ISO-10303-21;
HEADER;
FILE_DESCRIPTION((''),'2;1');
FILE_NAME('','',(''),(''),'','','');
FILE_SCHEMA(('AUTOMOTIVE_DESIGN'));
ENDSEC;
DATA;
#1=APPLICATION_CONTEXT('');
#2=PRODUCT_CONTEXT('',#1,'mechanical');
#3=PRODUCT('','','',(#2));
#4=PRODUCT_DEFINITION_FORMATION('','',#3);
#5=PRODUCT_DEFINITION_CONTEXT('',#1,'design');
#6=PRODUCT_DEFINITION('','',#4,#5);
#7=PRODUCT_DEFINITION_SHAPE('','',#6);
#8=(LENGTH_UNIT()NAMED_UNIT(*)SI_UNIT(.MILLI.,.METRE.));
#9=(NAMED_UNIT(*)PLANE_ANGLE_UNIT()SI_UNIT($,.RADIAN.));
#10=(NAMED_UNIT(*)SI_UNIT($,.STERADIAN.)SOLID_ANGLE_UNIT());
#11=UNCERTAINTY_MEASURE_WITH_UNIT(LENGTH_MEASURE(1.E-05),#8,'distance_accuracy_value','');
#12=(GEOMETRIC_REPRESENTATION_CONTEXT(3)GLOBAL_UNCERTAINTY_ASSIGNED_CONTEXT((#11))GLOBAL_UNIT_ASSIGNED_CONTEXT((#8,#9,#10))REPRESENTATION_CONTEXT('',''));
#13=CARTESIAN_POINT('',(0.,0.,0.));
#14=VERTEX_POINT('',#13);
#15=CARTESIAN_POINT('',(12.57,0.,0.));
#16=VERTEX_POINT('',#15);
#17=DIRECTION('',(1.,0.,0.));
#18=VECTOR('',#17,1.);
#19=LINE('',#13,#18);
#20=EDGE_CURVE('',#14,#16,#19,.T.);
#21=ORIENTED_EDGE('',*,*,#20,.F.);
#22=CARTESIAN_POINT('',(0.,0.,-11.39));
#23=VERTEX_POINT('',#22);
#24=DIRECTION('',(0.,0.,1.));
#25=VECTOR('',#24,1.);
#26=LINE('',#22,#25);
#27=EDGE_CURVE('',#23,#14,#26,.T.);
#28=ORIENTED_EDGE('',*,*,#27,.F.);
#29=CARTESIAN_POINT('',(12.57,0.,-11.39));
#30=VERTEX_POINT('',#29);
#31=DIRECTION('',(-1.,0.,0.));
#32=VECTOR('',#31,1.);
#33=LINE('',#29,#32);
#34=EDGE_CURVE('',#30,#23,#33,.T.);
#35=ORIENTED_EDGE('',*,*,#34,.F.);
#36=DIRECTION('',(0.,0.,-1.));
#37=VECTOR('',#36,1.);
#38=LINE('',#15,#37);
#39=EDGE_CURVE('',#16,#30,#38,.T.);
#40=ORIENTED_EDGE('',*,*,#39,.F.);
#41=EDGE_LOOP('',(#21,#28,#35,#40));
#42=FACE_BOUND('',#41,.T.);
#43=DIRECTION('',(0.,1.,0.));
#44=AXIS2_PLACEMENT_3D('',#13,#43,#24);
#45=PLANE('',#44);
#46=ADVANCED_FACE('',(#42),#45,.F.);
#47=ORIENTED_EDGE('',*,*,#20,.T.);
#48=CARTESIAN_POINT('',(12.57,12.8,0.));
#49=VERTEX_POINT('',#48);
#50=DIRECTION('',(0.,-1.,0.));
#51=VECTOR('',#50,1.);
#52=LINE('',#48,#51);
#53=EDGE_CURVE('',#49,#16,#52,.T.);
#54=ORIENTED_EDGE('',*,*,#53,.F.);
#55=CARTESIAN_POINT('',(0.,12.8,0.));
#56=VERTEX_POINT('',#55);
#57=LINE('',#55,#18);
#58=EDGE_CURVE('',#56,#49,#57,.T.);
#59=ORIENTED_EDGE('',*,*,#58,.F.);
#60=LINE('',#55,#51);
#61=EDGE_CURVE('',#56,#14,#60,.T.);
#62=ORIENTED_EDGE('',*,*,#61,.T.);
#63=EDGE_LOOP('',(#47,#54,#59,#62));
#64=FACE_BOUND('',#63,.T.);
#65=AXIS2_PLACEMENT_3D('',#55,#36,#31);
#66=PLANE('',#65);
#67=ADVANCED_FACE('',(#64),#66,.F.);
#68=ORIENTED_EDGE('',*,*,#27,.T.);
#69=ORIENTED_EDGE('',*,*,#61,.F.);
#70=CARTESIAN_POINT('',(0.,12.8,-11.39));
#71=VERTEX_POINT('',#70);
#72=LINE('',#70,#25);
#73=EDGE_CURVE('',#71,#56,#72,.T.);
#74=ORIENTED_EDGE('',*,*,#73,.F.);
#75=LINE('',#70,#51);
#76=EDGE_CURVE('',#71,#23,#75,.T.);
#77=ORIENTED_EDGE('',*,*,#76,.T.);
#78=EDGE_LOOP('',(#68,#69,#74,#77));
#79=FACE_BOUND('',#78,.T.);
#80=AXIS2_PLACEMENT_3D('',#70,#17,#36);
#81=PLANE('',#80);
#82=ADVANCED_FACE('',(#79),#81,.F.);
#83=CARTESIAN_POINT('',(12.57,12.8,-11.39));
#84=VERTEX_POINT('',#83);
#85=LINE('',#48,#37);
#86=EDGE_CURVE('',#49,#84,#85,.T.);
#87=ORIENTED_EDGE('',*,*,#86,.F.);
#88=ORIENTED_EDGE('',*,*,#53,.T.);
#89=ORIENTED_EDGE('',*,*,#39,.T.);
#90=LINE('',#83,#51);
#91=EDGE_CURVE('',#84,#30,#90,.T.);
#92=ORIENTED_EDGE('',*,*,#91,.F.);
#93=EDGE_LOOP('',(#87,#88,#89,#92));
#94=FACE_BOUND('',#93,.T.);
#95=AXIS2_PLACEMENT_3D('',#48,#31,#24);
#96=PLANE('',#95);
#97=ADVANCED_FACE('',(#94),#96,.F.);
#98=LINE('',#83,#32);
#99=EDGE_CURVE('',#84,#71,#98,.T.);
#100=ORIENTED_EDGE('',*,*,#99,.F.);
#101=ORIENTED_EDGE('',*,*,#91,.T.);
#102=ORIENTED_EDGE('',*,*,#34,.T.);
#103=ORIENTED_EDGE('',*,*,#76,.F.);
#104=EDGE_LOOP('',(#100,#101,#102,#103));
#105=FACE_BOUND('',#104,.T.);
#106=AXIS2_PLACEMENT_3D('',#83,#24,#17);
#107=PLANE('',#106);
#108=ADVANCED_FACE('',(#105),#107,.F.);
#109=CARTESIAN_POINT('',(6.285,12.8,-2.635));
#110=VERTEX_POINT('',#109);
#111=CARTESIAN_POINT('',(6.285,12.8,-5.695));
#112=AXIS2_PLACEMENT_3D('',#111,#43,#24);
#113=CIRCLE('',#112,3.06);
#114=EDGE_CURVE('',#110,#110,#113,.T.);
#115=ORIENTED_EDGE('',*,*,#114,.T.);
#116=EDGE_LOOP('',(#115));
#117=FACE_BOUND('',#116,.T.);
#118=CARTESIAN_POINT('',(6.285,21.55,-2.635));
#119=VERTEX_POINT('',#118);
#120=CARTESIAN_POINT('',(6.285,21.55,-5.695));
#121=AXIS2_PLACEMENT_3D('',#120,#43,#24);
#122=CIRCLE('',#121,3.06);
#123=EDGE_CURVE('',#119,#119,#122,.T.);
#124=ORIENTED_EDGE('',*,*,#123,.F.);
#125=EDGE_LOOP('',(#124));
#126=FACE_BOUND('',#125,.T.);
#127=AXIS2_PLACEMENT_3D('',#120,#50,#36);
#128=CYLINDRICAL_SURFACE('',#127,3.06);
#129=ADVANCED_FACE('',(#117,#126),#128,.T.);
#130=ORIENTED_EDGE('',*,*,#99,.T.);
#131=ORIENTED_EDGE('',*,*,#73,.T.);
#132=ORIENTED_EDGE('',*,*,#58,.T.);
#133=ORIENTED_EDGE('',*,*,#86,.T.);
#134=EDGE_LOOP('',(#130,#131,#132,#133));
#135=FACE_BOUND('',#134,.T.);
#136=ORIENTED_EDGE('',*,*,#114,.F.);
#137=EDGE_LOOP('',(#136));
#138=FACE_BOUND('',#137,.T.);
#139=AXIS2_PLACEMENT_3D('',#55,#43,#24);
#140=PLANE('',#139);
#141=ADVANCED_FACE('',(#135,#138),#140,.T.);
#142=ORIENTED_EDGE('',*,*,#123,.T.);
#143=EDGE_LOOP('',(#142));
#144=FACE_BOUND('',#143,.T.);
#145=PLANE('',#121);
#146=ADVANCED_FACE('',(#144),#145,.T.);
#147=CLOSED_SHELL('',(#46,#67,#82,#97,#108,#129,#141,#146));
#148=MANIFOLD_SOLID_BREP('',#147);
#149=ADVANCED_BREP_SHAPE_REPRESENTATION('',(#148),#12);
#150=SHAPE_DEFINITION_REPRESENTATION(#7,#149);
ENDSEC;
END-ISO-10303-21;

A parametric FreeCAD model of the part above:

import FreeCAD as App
import Part
import Sketcher
from FreeCAD import Vector
Q = App.Units.Quantity

doc = App.newDocument("Part")
params = doc.addObject("Spreadsheet::Sheet", "Params")
for row, (alias, value) in enumerate([
    ("sketch1_width", "12.57 mm"),
    ("sketch1_height", "11.39 mm"),
    ("pad1_length", "12.8 mm"),
    ("sketch2_diameter", "6.12 mm"),
    ("pad2_length", "8.75 mm"),
], start=1):
    params.set(f"A{row}", alias)
    params.set(f"B{row}", "=" + value)
    params.setAlias(f"B{row}", alias)

body = doc.addObject("PartDesign::Body", "Body")

# Sketch on XZ plane
sketch1 = doc.addObject("Sketcher::SketchObject", "Sketch")
body.addObject(sketch1)
sketch1.AttachmentSupport = (doc.XZ_Plane, [""])
sketch1.MapMode = "FlatFace"
sketch1.addGeometry([
    Part.LineSegment(Vector(0, -11.39, 0), Vector(0, 0, 0)),
    Part.LineSegment(Vector(0, 0, 0), Vector(12.57, 0, 0)),
    Part.LineSegment(Vector(12.57, 0, 0), Vector(12.57, -11.39, 0)),
    Part.LineSegment(Vector(12.57, -11.39, 0), Vector(0, -11.39, 0)),
], False)
sketch1.addConstraint([
    Sketcher.Constraint("Coincident", 0, 2, 1, 1),
    Sketcher.Constraint("Coincident", 1, 2, 2, 1),
    Sketcher.Constraint("Coincident", 2, 2, 3, 1),
    Sketcher.Constraint("Coincident", 3, 2, 0, 1),
    Sketcher.Constraint("Vertical", 0),
    Sketcher.Constraint("Horizontal", 1),
    Sketcher.Constraint("Vertical", 2),
    Sketcher.Constraint("Horizontal", 3),
    Sketcher.Constraint("Coincident", 0, 2, -1, 1),
    Sketcher.Constraint("DistanceX", 1, 1, 1, 2, Q("12.57 mm")),
    Sketcher.Constraint("DistanceY", 0, 1, 0, 2, Q("11.39 mm")),
])
sketch1.setExpression("Constraints[9]", "Params.sketch1_width")
sketch1.setExpression("Constraints[10]", "Params.sketch1_height")
pad1 = doc.addObject("PartDesign::Pad", "Pad")
body.addObject(pad1)
pad1.Profile = sketch1
pad1.setExpression("Length", "Params.pad1_length")
pad1.Reversed = True

# Sketch on XZ plane
sketch2 = doc.addObject("Sketcher::SketchObject", "Sketch001")
body.addObject(sketch2)
sketch2.AttachmentSupport = (doc.XZ_Plane, [""])
sketch2.MapMode = "FlatFace"
sketch2.AttachmentOffset = App.Placement(Vector(0, 0, -12.8), App.Rotation())
sketch2.addGeometry(Part.Circle(Vector(6.285, -5.695, 0), Vector(0, 0, 1), 3.06), False)
sketch2.addConstraint([
    Sketcher.Constraint("Diameter", 0, Q("6.12 mm")),
    Sketcher.Constraint("DistanceX", -1, 1, 0, 3, Q("6.285 mm")),
    Sketcher.Constraint("DistanceY", 0, 3, -1, 1, Q("5.695 mm")),
])
sketch2.setExpression("Constraints[0]", "Params.sketch2_diameter")
pad2 = doc.addObject("PartDesign::Pad", "Pad001")
body.addObject(pad2)
pad2.Profile = sketch2
pad2.setExpression("Length", "Params.pad2_length")
pad2.Reversed = True

doc.recompute()
